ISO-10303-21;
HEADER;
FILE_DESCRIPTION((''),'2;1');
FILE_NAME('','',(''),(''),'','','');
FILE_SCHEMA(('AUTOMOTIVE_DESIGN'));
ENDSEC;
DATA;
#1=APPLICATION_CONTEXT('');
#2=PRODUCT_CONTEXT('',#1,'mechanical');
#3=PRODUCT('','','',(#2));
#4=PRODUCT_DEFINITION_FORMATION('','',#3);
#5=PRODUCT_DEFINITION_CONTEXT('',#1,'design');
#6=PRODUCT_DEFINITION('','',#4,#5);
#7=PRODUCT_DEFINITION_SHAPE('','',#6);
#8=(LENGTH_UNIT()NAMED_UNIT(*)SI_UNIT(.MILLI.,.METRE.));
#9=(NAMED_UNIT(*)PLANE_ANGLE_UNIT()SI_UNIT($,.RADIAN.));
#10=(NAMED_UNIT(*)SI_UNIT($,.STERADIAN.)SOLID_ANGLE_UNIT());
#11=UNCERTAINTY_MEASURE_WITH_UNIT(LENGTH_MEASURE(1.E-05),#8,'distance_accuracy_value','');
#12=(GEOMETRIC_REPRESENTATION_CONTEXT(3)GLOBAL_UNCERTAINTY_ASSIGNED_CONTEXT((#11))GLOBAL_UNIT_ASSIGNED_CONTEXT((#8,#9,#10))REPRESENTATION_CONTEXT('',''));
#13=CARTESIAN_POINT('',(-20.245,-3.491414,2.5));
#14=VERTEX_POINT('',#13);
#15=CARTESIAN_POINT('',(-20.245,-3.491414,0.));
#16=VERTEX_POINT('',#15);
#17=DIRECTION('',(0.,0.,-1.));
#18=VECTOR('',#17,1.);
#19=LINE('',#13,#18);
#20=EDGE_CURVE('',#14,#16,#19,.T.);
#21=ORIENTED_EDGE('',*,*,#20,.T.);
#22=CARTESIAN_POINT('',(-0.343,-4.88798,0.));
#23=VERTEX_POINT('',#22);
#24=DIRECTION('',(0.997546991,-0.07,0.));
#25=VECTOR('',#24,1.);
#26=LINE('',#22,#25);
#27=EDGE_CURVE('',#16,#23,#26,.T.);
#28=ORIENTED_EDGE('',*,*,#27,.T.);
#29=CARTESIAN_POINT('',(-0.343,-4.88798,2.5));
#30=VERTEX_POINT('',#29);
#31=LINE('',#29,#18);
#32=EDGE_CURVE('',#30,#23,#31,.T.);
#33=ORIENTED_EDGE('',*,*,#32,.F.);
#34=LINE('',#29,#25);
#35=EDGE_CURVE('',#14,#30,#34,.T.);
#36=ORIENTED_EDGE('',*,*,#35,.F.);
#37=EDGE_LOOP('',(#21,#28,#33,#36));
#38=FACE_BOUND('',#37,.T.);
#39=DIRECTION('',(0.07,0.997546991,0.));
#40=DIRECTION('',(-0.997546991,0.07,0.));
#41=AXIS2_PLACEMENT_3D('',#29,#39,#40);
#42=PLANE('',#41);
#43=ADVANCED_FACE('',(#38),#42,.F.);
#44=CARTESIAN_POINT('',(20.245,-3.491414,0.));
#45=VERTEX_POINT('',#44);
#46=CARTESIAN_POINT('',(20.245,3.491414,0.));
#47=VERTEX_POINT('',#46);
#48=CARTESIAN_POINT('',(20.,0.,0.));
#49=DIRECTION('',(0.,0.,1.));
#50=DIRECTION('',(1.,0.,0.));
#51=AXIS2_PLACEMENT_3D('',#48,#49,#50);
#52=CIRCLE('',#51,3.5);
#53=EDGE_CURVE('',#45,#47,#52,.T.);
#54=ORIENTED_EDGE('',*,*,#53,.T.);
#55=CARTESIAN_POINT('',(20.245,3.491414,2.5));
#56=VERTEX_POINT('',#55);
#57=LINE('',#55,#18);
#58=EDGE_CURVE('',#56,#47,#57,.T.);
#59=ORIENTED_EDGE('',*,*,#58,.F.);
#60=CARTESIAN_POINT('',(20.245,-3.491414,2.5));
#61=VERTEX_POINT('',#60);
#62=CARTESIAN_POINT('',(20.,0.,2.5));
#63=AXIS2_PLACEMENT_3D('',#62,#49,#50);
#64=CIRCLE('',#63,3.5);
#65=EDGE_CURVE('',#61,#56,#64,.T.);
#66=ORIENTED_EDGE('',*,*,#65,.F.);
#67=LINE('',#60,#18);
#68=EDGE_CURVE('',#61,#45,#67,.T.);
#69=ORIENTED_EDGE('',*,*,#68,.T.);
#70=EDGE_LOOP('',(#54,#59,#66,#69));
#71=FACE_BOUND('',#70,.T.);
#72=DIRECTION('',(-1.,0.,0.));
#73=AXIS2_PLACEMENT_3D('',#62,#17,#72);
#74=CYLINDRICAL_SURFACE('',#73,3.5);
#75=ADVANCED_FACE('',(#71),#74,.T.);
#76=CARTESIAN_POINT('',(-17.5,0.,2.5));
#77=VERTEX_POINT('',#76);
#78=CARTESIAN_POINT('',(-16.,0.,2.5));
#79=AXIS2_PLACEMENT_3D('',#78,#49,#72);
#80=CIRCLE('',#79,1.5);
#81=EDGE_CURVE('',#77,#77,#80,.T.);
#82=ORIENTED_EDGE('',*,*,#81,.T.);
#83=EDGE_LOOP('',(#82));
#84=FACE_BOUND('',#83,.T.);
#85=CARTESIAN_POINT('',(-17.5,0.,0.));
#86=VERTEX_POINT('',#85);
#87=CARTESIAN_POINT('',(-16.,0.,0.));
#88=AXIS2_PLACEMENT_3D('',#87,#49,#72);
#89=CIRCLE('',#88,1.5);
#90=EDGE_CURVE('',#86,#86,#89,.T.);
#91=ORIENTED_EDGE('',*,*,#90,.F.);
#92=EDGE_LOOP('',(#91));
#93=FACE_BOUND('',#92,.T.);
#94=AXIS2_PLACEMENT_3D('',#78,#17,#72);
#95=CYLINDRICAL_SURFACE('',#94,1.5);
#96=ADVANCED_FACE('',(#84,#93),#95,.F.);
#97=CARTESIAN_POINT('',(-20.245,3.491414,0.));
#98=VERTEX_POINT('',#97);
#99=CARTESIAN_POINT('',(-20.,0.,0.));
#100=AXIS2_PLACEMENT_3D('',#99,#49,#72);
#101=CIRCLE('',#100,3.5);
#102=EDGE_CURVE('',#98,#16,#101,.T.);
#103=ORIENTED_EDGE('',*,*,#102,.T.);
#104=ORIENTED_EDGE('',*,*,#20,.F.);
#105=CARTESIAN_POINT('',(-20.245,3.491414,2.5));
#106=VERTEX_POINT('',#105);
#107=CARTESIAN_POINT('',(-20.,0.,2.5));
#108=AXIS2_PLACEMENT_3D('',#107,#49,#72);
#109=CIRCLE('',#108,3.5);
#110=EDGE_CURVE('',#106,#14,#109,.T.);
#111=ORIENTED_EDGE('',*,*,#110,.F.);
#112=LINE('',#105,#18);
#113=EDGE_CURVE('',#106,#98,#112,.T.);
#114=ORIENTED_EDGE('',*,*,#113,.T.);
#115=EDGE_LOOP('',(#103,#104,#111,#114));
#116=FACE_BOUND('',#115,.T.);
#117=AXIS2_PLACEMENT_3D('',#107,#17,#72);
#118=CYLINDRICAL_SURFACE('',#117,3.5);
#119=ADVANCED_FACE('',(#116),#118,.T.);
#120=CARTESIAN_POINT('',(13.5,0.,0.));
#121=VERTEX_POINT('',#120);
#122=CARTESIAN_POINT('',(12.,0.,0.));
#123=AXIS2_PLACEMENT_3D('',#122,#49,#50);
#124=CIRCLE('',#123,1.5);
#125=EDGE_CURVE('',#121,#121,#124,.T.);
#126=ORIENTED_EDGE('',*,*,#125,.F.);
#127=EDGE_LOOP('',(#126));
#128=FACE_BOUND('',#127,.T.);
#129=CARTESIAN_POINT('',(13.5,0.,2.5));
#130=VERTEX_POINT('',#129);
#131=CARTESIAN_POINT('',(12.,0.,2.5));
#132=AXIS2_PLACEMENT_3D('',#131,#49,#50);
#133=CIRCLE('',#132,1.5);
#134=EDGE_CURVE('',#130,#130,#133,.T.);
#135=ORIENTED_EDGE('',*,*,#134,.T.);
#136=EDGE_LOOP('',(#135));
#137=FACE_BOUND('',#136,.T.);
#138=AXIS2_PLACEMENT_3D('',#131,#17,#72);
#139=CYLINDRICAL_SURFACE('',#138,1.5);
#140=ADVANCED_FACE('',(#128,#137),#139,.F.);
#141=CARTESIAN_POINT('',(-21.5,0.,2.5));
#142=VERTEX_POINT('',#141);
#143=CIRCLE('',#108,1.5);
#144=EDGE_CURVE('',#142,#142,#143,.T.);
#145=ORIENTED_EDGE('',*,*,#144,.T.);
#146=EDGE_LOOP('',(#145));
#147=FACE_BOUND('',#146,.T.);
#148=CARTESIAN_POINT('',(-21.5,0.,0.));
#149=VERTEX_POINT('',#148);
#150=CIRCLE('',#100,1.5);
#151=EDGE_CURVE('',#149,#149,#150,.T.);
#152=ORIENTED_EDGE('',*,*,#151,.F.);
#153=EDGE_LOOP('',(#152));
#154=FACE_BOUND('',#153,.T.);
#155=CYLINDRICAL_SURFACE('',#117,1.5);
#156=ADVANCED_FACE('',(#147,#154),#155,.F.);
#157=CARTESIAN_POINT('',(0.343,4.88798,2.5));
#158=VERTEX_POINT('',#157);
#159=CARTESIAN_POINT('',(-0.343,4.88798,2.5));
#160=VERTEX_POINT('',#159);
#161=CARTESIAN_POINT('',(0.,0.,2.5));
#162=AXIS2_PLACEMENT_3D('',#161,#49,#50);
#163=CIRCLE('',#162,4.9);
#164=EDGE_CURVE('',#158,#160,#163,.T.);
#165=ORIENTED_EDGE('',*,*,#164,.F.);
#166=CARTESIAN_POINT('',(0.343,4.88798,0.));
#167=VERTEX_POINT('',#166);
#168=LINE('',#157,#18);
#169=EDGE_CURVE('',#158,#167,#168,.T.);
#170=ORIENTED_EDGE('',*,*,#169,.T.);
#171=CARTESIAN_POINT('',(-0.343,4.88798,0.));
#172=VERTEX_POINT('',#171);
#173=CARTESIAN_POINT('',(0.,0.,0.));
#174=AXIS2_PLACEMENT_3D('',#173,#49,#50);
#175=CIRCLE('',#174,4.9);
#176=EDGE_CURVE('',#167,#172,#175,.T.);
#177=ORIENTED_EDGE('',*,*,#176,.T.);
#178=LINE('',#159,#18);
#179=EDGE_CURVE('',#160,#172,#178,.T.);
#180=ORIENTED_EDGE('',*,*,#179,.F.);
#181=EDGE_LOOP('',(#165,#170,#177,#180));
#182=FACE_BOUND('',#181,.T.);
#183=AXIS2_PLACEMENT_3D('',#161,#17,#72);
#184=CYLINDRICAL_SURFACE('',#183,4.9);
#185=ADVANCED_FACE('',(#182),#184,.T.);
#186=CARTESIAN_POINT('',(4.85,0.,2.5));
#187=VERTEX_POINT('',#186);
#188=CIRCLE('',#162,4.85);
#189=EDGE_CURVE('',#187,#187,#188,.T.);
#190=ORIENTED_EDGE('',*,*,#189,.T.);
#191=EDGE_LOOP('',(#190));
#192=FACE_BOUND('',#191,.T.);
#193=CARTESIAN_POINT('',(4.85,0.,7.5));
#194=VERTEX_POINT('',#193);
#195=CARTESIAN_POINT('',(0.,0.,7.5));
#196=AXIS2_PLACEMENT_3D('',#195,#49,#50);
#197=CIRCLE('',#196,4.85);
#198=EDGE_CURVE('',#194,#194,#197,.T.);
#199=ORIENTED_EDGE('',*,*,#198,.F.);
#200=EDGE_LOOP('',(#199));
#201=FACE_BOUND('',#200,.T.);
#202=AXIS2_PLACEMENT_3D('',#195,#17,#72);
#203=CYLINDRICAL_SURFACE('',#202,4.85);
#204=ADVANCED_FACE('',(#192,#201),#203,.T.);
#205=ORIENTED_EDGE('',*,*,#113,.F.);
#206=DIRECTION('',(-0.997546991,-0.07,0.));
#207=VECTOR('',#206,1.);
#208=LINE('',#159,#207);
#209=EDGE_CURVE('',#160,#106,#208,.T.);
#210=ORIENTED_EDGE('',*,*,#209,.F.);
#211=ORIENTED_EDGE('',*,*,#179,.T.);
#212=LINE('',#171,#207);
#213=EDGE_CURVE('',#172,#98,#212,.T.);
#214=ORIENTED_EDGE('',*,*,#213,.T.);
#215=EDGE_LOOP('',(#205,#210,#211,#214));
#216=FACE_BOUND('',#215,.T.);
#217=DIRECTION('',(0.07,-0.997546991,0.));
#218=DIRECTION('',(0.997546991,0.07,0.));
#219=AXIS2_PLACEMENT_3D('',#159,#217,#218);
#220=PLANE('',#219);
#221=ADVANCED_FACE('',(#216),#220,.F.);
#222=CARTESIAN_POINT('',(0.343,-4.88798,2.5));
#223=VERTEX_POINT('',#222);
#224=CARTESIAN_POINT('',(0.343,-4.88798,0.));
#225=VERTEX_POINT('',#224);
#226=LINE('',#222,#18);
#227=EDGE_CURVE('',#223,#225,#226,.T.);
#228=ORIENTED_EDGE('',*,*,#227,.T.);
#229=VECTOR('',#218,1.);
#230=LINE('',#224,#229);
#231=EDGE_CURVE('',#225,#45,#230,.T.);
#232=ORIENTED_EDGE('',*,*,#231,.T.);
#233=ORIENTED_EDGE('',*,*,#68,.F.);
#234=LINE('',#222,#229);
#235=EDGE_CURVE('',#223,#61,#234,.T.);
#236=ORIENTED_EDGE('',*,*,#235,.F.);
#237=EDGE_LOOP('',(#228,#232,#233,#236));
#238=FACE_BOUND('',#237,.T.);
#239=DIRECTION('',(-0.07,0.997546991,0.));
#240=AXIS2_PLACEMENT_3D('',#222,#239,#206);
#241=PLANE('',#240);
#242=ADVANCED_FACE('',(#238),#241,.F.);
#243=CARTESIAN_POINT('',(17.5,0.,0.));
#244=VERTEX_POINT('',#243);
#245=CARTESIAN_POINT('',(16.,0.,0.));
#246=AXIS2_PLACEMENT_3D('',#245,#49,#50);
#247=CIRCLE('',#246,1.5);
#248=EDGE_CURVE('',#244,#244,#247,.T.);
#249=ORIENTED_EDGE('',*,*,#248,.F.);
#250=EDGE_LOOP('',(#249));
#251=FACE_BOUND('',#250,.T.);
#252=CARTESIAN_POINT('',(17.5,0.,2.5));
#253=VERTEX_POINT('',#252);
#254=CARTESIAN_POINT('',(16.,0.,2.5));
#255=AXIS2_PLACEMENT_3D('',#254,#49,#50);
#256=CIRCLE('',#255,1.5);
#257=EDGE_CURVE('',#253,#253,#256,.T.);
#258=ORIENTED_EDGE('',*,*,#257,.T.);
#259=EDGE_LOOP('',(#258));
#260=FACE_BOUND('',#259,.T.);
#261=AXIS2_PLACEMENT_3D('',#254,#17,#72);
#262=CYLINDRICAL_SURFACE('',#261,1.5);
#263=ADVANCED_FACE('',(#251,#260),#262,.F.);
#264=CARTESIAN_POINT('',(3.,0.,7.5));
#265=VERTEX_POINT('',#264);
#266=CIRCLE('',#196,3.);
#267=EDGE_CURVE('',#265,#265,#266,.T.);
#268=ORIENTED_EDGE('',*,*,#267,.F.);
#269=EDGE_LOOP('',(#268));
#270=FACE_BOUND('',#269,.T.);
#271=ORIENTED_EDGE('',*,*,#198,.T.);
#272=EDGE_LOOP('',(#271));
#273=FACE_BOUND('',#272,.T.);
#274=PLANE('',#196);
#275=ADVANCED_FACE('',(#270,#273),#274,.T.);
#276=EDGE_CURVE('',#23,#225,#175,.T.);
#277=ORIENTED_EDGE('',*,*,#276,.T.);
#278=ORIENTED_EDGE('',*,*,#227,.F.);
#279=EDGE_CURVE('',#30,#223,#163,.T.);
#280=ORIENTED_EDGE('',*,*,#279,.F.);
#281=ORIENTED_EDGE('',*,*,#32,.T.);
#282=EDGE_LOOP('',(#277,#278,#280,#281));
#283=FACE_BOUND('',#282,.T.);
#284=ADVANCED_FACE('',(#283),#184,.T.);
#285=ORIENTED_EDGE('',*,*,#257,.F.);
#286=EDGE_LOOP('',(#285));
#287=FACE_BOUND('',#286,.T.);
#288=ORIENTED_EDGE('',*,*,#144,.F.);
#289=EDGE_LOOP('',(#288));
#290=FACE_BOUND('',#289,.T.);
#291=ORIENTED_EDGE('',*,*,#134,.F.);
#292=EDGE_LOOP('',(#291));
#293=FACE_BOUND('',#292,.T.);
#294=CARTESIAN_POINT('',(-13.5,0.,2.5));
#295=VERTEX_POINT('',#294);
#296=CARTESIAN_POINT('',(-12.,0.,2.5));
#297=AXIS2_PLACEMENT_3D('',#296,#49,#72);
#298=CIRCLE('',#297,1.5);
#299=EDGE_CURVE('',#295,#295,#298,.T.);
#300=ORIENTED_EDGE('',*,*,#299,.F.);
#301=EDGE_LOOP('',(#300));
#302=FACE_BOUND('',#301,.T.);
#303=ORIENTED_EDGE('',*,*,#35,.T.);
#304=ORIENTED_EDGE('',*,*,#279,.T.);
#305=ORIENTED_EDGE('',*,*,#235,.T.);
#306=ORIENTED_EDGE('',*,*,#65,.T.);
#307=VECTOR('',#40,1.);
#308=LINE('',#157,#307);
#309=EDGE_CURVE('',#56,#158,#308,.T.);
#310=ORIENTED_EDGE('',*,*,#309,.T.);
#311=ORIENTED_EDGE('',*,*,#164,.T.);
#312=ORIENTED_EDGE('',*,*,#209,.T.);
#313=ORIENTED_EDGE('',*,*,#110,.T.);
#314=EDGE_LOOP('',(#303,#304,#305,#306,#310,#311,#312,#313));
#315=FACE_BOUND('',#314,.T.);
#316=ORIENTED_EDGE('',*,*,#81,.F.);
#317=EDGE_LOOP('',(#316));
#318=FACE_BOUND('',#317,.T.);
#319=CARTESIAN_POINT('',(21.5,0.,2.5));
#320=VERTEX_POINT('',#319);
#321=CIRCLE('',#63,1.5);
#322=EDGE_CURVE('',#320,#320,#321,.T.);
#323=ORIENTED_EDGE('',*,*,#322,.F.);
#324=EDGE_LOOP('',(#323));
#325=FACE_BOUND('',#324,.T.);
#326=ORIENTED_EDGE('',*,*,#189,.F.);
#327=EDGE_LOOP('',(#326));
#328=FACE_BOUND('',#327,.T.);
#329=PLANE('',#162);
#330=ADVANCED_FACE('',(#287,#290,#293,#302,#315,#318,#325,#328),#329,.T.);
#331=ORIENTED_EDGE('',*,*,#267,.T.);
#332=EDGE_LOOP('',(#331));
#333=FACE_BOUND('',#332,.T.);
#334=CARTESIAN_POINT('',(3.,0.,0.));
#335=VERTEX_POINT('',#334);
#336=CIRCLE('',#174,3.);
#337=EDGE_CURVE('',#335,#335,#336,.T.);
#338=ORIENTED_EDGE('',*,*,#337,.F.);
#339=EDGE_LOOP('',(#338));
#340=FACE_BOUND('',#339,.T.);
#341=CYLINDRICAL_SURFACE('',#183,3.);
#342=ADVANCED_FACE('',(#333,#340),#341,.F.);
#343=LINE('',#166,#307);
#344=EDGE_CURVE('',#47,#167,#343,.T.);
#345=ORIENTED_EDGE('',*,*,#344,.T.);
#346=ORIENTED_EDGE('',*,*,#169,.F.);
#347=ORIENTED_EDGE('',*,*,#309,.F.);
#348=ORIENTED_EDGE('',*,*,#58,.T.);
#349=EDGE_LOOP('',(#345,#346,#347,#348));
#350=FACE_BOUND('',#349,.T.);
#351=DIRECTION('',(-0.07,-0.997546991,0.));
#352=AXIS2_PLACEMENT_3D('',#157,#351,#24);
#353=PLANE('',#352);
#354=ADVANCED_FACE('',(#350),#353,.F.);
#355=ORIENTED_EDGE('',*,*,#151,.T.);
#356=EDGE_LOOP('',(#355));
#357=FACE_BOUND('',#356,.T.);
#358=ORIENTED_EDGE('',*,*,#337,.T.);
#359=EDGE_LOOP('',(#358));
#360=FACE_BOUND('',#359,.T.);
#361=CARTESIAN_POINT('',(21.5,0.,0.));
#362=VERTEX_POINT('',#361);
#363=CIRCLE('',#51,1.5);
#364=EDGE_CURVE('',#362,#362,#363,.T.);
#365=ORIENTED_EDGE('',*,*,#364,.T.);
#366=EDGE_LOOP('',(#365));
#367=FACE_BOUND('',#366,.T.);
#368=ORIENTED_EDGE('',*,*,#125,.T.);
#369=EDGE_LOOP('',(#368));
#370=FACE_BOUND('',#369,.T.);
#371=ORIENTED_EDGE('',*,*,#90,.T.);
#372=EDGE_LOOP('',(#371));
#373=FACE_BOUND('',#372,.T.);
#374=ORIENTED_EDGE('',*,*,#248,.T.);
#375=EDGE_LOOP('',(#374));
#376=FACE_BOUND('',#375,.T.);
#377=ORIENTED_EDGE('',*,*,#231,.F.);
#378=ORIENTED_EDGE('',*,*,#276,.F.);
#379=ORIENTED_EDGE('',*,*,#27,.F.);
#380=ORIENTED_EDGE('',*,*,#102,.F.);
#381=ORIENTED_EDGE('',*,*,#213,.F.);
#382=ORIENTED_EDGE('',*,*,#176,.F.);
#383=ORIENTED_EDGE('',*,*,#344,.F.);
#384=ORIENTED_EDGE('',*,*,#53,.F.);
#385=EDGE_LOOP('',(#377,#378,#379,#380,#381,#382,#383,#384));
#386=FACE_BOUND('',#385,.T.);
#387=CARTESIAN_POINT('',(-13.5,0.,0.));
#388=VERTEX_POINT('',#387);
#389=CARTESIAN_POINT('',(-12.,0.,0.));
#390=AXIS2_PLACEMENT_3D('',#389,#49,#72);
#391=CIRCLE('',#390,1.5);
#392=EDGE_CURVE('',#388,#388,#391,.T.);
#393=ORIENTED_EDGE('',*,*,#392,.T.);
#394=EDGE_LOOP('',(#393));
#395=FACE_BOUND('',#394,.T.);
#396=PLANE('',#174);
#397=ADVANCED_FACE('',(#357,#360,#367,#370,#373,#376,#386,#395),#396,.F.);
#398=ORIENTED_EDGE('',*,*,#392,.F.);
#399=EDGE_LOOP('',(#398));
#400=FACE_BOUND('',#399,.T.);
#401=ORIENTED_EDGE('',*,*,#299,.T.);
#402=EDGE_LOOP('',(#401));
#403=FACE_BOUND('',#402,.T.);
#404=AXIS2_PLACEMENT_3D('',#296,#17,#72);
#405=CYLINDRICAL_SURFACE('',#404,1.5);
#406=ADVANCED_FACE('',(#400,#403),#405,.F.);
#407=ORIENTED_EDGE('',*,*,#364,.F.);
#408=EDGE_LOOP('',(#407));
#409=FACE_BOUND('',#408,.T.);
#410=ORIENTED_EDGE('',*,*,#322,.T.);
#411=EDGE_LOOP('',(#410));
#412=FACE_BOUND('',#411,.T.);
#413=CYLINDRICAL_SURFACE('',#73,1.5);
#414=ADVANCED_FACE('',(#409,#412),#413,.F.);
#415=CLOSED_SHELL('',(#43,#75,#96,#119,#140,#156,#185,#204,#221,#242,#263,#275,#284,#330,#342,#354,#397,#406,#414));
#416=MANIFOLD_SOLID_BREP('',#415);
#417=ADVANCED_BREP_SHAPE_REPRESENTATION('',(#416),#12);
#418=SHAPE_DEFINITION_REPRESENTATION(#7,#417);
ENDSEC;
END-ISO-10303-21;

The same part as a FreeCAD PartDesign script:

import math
import FreeCAD as App
import Part
import Sketcher

V = App.Vector
Q = App.Units.Quantity

doc = App.newDocument("Part")
params = doc.addObject("Spreadsheet::Sheet", "Params")
for row, (alias, value) in enumerate([
    ("sketch1_diameter", "3 mm"),
    ("sketch1_diameter2", "6 mm"),
    ("sketch1_radius", "4.9 mm"),
    ("sketch1_radius2", "3.5 mm"),
    ("pad1_length", "2.5 mm"),
    ("sketch2_diameter", "6 mm"),
    ("sketch2_diameter2", "9.7 mm"),
    ("pad2_length", "5 mm"),
], start=1):
    params.set(f"A{row}", alias)
    params.set(f"B{row}", "=" + value)
    params.setAlias(f"B{row}", alias)

body = doc.addObject("PartDesign::Body", "Body")

sketch1 = body.newObject("Sketcher::SketchObject", "Sketch")
sketch1.AttachmentSupport = (doc.getObject("XY_Plane"), [""])
sketch1.MapMode = "FlatFace"
sketch1.addGeometry(Part.LineSegment(V(-20.2, -3.5, 0), V(-0.3, -4.9, 0)), False)
sketch1.addGeometry(Part.ArcOfCircle(Part.Circle(V(0, 0, 0), V(0, 0, 1), 4.9), math.radians(-94.01), math.radians(-85.99)), False)
sketch1.addGeometry(Part.LineSegment(V(0.3, -4.9, 0), V(20.2, -3.5, 0)), False)
sketch1.addGeometry(Part.ArcOfCircle(Part.Circle(V(20, 0, 0), V(0, 0, 1), 3.5), math.radians(-86), math.radians(86)), False)
sketch1.addGeometry(Part.LineSegment(V(20.2, 3.5, 0), V(0.3, 4.9, 0)), False)
sketch1.addGeometry(Part.ArcOfCircle(Part.Circle(V(0, 0, 0), V(0, 0, 1), 4.9), math.radians(85.99), math.radians(94.01)), False)
sketch1.addGeometry(Part.LineSegment(V(-0.3, 4.9, 0), V(-20.2, 3.5, 0)), False)
sketch1.addGeometry(Part.ArcOfCircle(Part.Circle(V(-20, 0, 0), V(0, 0, 1), 3.5), math.radians(94), math.radians(266)), False)
sketch1.addGeometry(Part.Circle(V(20, 0, 0), V(0, 0, 1), 1.5), False)
sketch1.addGeometry(Part.Circle(V(16, 0, 0), V(0, 0, 1), 1.5), False)
sketch1.addGeometry(Part.Circle(V(12, 0, 0), V(0, 0, 1), 1.5), False)
sketch1.addGeometry(Part.Circle(V(0, 0, 0), V(0, 0, 1), 3), False)
sketch1.addGeometry(Part.Circle(V(-12, 0, 0), V(0, 0, 1), 1.5), False)
sketch1.addGeometry(Part.Circle(V(-16, 0, 0), V(0, 0, 1), 1.5), False)
sketch1.addGeometry(Part.Circle(V(-20, 0, 0), V(0, 0, 1), 1.5), False)
sketch1.addConstraint(Sketcher.Constraint("Tangent", 0, 2, 1, 1))
sketch1.addConstraint(Sketcher.Constraint("Tangent", 1, 2, 2, 1))
sketch1.addConstraint(Sketcher.Constraint("Tangent", 2, 2, 3, 1))
sketch1.addConstraint(Sketcher.Constraint("Tangent", 3, 2, 4, 1))
sketch1.addConstraint(Sketcher.Constraint("Tangent", 4, 2, 5, 1))
sketch1.addConstraint(Sketcher.Constraint("Tangent", 5, 2, 6, 1))
sketch1.addConstraint(Sketcher.Constraint("Tangent", 6, 2, 7, 1))
sketch1.addConstraint(Sketcher.Constraint("Tangent", 7, 2, 0, 1))
sketch1.addConstraint(Sketcher.Constraint("Coincident", 1, 3, -1, 1))
sketch1.addConstraint(Sketcher.Constraint("Coincident", 5, 3, -1, 1))
sketch1.addConstraint(Sketcher.Constraint("Coincident", 11, 3, -1, 1))
sketch1.addConstraint(Sketcher.Constraint("Coincident", 8, 3, 3, 3))
sketch1.addConstraint(Sketcher.Constraint("Coincident", 14, 3, 7, 3))
sketch1.addConstraint(Sketcher.Constraint("Equal", 1, 5))
sketch1.addConstraint(Sketcher.Constraint("Equal", 3, 7))
sketch1.addConstraint(Sketcher.Constraint("Equal", 8, 9))
sketch1.addConstraint(Sketcher.Constraint("Equal", 9, 10))
sketch1.addConstraint(Sketcher.Constraint("Equal", 10, 12))
sketch1.addConstraint(Sketcher.Constraint("Equal", 12, 13))
sketch1.addConstraint(Sketcher.Constraint("Equal", 13, 14))
sketch1.addConstraint(Sketcher.Constraint("Symmetric", 3, 3, 7, 3, -1, 1))
sketch1.addConstraint(Sketcher.Constraint("Symmetric", 10, 3, 12, 3, -1, 1))
sketch1.addConstraint(Sketcher.Constraint("Symmetric", 9, 3, 13, 3, -1, 1))
sketch1.addConstraint(Sketcher.Constraint("PointOnObject", 3, 3, -1))
sketch1.addConstraint(Sketcher.Constraint("PointOnObject", 9, 3, -1))
sketch1.addConstraint(Sketcher.Constraint("PointOnObject", 10, 3, -1))
sketch1.addConstraint(Sketcher.Constraint("Diameter", 8, Q("3 mm")))
sketch1.addConstraint(Sketcher.Constraint("Diameter", 11, Q("6 mm")))
sketch1.addConstraint(Sketcher.Constraint("Radius", 1, Q("4.9 mm")))
sketch1.addConstraint(Sketcher.Constraint("Radius", 3, Q("3.5 mm")))
sketch1.addConstraint(Sketcher.Constraint("DistanceX", -1, 1, 3, 3, Q("20 mm")))
sketch1.addConstraint(Sketcher.Constraint("DistanceX", -1, 1, 9, 3, Q("16 mm")))
sketch1.addConstraint(Sketcher.Constraint("DistanceX", -1, 1, 10, 3, Q("12 mm")))
sketch1.setExpression("Constraints[26]", "Params.sketch1_diameter")
sketch1.setExpression("Constraints[27]", "Params.sketch1_diameter2")
sketch1.setExpression("Constraints[28]", "Params.sketch1_radius")
sketch1.setExpression("Constraints[29]", "Params.sketch1_radius2")
pad1 = body.newObject("PartDesign::Pad", "Pad")
pad1.Profile = sketch1
pad1.setExpression("Length", "Params.pad1_length")

sketch2 = body.newObject("Sketcher::SketchObject", "Sketch001")
sketch2.AttachmentSupport = (doc.getObject("XY_Plane"), [""])
sketch2.MapMode = "FlatFace"
sketch2.AttachmentOffset = App.Placement(V(0, 0, 2.5), App.Rotation())
sketch2.addGeometry(Part.Circle(V(0, 0, 0), V(0, 0, 1), 4.8), False)
sketch2.addGeometry(Part.Circle(V(0, 0, 0), V(0, 0, 1), 3), False)
sketch2.addConstraint(Sketcher.Constraint("Coincident", 0, 3, -1, 1))
sketch2.addConstraint(Sketcher.Constraint("Coincident", 1, 3, -1, 1))
sketch2.addConstraint(Sketcher.Constraint("Diameter", 1, Q("6 mm")))
sketch2.addConstraint(Sketcher.Constraint("Diameter", 0, Q("9.7 mm")))
sketch2.setExpression("Constraints[2]", "Params.sketch2_diameter")
sketch2.setExpression("Constraints[3]", "Params.sketch2_diameter2")
pad2 = body.newObject("PartDesign::Pad", "Pad001")
pad2.Profile = sketch2
pad2.setExpression("Length", "Params.pad2_length")

doc.recompute()
